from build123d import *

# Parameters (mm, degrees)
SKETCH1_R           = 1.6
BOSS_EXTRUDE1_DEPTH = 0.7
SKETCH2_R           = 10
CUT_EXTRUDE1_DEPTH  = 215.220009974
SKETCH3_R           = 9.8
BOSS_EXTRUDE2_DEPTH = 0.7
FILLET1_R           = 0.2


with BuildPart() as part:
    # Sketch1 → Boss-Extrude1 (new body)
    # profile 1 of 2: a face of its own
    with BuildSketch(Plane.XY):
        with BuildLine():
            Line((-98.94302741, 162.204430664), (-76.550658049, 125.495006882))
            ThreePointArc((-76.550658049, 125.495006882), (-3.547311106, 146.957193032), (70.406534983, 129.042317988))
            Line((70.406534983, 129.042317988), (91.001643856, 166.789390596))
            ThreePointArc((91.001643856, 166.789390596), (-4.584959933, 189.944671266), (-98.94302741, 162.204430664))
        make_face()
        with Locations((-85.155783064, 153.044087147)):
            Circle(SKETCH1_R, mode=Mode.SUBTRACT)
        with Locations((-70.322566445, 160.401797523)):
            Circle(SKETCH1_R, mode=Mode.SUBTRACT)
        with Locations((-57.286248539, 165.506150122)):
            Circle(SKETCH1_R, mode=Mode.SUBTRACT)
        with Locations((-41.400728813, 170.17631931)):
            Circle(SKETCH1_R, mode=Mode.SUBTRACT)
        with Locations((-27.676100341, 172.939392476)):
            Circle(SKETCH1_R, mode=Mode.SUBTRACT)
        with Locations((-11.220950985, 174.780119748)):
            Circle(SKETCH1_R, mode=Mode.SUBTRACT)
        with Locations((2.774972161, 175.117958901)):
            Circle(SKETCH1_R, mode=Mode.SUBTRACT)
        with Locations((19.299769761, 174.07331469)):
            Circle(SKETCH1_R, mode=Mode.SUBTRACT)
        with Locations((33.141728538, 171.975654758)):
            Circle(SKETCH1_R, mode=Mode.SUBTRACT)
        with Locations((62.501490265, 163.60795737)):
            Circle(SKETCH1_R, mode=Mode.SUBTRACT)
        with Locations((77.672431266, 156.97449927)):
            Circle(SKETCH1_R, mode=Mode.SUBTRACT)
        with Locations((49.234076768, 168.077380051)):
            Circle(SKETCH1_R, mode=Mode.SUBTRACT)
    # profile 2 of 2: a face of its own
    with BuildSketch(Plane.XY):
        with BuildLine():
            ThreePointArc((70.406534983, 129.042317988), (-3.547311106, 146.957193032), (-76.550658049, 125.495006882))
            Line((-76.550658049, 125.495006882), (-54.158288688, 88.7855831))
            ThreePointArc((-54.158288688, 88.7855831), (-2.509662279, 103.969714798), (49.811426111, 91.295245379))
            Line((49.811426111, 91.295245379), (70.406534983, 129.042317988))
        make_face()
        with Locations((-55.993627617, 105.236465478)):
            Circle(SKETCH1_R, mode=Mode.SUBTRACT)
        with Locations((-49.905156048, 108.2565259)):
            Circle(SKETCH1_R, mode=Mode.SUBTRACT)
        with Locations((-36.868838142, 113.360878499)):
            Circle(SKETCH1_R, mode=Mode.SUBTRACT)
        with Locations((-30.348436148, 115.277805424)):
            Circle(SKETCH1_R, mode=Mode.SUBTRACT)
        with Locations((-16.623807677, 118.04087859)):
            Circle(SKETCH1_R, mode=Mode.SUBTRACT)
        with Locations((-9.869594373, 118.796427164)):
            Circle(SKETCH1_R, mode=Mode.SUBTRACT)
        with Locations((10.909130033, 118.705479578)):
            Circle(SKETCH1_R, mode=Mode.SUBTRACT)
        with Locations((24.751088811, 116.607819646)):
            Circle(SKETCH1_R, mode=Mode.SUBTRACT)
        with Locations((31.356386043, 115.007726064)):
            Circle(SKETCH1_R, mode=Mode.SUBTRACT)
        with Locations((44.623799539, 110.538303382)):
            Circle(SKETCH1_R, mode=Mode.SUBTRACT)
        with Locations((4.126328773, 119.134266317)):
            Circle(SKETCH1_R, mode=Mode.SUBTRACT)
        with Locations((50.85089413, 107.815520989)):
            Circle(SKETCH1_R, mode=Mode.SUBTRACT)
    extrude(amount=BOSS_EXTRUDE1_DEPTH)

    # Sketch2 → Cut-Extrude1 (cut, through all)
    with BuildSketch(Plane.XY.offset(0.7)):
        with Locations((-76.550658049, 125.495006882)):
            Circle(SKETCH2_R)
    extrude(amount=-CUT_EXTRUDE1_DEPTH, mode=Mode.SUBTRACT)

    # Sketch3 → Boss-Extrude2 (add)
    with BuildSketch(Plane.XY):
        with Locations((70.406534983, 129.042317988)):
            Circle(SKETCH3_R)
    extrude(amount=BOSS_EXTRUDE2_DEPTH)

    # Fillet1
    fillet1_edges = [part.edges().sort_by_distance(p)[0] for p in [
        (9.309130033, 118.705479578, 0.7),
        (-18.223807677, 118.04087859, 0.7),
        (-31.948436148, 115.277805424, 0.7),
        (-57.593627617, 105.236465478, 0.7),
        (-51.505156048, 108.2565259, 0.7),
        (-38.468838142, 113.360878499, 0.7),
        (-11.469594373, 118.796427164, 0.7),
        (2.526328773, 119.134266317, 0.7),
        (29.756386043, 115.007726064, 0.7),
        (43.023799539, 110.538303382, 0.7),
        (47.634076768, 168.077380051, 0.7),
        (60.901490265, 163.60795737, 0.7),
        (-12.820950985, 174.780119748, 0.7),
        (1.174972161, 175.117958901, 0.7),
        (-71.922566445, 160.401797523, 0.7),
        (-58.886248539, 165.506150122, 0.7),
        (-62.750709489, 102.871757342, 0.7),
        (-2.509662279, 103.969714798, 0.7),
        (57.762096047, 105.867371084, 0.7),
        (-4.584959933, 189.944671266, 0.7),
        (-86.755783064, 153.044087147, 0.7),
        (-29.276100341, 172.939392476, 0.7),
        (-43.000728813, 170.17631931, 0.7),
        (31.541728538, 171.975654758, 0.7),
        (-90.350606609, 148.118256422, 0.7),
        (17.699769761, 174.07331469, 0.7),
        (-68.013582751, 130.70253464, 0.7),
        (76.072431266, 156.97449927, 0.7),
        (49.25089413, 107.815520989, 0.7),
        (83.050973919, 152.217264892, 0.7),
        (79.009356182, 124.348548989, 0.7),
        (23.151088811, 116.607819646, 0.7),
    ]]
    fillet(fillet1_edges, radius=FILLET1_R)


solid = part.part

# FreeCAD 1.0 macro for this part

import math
import FreeCAD as App
import Part
import Sketcher

V = App.Vector


def edges_at(feature, points):
    """Names of the edges that pass closest to the given points."""
    edges = feature.Shape.Edges
    near = lambda p: min(range(len(edges)), key=lambda i: edges[i].distToShape(Part.Vertex(*p))[0])
    return sorted({f"Edge{near(p) + 1}" for p in points})

doc = App.newDocument("Part")
body = doc.addObject("PartDesign::Body", "Body")

# Sketch on XY plane
sketch1 = body.newObject("Sketcher::SketchObject", "Sketch")
sketch1.AttachmentSupport = (doc.getObject("XY_Plane"), [""])
sketch1.MapMode = "FlatFace"
sketch1.addGeometry([
    Part.LineSegment(V(-98.9, 162.2, 0), V(-54.2, 88.8, 0)),  # 0
    Part.ArcOfCircle(Part.Circle(V(0, 0, 0), V(0, 0, 1), 104), math.radians(61), math.radians(121)),  # 1
    Part.LineSegment(V(49.8, 91.3, 0), V(70.4, 129, 0)),  # 2
    Part.LineSegment(V(70.4, 129, 0), V(91, 166.8, 0)),  # 3
    Part.ArcOfCircle(Part.Circle(V(0, 0, 0), V(0, 0, 1), 190), math.radians(61), math.radians(121)),  # 4
    Part.Circle(V(-85.2, 153, 0), V(0, 0, 1), 1.6),  # 5
    Part.Circle(V(-70.3, 160.4, 0), V(0, 0, 1), 1.6),  # 6
    Part.Circle(V(77.7, 157, 0), V(0, 0, 1), 1.6),  # 7
    Part.Circle(V(62.5, 163.6, 0), V(0, 0, 1), 1.6),  # 8
    Part.Circle(V(-57.3, 165.5, 0), V(0, 0, 1), 1.6),  # 9
    Part.Circle(V(-41.4, 170.2, 0), V(0, 0, 1), 1.6),  # 10
    Part.Circle(V(-27.7, 172.9, 0), V(0, 0, 1), 1.6),  # 11
    Part.Circle(V(-11.2, 174.8, 0), V(0, 0, 1), 1.6),  # 12
    Part.Circle(V(49.2, 168.1, 0), V(0, 0, 1), 1.6),  # 13
    Part.Circle(V(33.1, 172, 0), V(0, 0, 1), 1.6),  # 14
    Part.Circle(V(2.8, 175.1, 0), V(0, 0, 1), 1.6),  # 15
    Part.Circle(V(19.3, 174.1, 0), V(0, 0, 1), 1.6),  # 16
    Part.Circle(V(10.9, 118.7, 0), V(0, 0, 1), 1.6),  # 17
    Part.Circle(V(-56, 105.2, 0), V(0, 0, 1), 1.6),  # 18
    Part.Circle(V(-49.9, 108.3, 0), V(0, 0, 1), 1.6),  # 19
    Part.Circle(V(50.9, 107.8, 0), V(0, 0, 1), 1.6),  # 20
    Part.Circle(V(44.6, 110.5, 0), V(0, 0, 1), 1.6),  # 21
    Part.Circle(V(-36.9, 113.4, 0), V(0, 0, 1), 1.6),  # 22
    Part.Circle(V(-30.3, 115.3, 0), V(0, 0, 1), 1.6),  # 23
    Part.Circle(V(-16.6, 118, 0), V(0, 0, 1), 1.6),  # 24
    Part.Circle(V(-9.9, 118.8, 0), V(0, 0, 1), 1.6),  # 25
    Part.Circle(V(31.4, 115, 0), V(0, 0, 1), 1.6),  # 26
    Part.Circle(V(24.8, 116.6, 0), V(0, 0, 1), 1.6),  # 27
    Part.Circle(V(4.1, 119.1, 0), V(0, 0, 1), 1.6),  # 28
], False)
sketch1.addConstraint([
    Sketcher.Constraint("Coincident", 0, 2, 1, 2),
    Sketcher.Constraint("Coincident", 1, 1, 2, 1),
    Sketcher.Constraint("Coincident", 2, 2, 3, 1),
    Sketcher.Constraint("Coincident", 3, 2, 4, 1),
    Sketcher.Constraint("Coincident", 4, 2, 0, 1),
    Sketcher.Constraint("Coincident", 1, 3, -1, 1),
    Sketcher.Constraint("Coincident", 4, 3, -1, 1),
    Sketcher.Constraint("Equal", 5, 6),
    Sketcher.Constraint("Equal", 6, 7),
    Sketcher.Constraint("Equal", 7, 8),
    Sketcher.Constraint("Equal", 8, 9),
    Sketcher.Constraint("Equal", 9, 10),
    Sketcher.Constraint("Equal", 10, 11),
    Sketcher.Constraint("Equal", 11, 12),
    Sketcher.Constraint("Equal", 12, 13),
    Sketcher.Constraint("Equal", 13, 14),
    Sketcher.Constraint("Equal", 14, 15),
    Sketcher.Constraint("Equal", 15, 16),
    Sketcher.Constraint("Equal", 16, 17),
    Sketcher.Constraint("Equal", 17, 18),
    Sketcher.Constraint("Equal", 18, 19),
    Sketcher.Constraint("Equal", 19, 20),
    Sketcher.Constraint("Equal", 20, 21),
    Sketcher.Constraint("Equal", 21, 22),
    Sketcher.Constraint("Equal", 22, 23),
    Sketcher.Constraint("Equal", 23, 24),
    Sketcher.Constraint("Equal", 24, 25),
    Sketcher.Constraint("Equal", 25, 26),
    Sketcher.Constraint("Equal", 26, 27),
    Sketcher.Constraint("Equal", 27, 28),
    Sketcher.Constraint("Parallel", 2, 3),
    Sketcher.Constraint("Equal", 2, 3),
    Sketcher.Constraint("Radius", 1, 104.0),
    Sketcher.Constraint("Radius", 4, 190.0),
    Sketcher.Constraint("Diameter", 5, 3.2),
    Sketcher.Constraint("DistanceY", 22, 3, 24, 3, 4.68),
    Sketcher.Constraint("DistanceY", -1, 1, 7, 3, 156.974499),
    Sketcher.Constraint("DistanceX", 11, 3, -1, 1, 27.6761),
    Sketcher.Constraint("DistanceX", -1, 1, 21, 3, 44.6238),
    Sketcher.Constraint("DistanceY", 7, 3, 6, 3, 3.427298),
    Sketcher.Constraint("DistanceY", 10, 3, 12, 3, 4.6038),
    Sketcher.Constraint("DistanceX", 10, 3, 15, 3, 44.175701),
    Sketcher.Constraint("DistanceX", 17, 3, 14, 3, 22.232599),
    Sketcher.Constraint("DistanceY", 17, 3, 13, 3, 49.3719),
    Sketcher.Constraint("DistanceX", 18, 3, 10, 3, 14.592899),
    Sketcher.Constraint("DistanceY", 22, 3, 17, 3, 5.344601),
    Sketcher.Constraint("DistanceX", 22, 3, 23, 3, 6.520402),
    Sketcher.Constraint("DistanceY", 19, 3, 25, 3, 10.539901),
    Sketcher.Constraint("DistanceY", 26, 3, 25, 3, 3.788701),
    Sketcher.Constraint("DistanceY", 20, 3, 27, 3, 8.792299),
    Sketcher.Constraint("DistanceX", 28, 3, 17, 3, 6.782801),
    Sketcher.Constraint("DistanceX", 4, 2, 10, 3, 57.542299),
    Sketcher.Constraint("DistanceX", -1, 1, 7, 3, 77.672431),
    Sketcher.Constraint("DistanceX", -1, 1, 8, 3, 62.50149),
    Sketcher.Constraint("DistanceX", 9, 3, -1, 1, 57.286249),
    Sketcher.Constraint("DistanceY", -1, 1, 9, 3, 165.50615),
    Sketcher.Constraint("DistanceX", 10, 3, -1, 1, 41.400729),
    Sketcher.Constraint("DistanceY", -1, 1, 10, 3, 170.176319),
    Sketcher.Constraint("DistanceX", 12, 3, -1, 1, 11.220951),
    Sketcher.Constraint("DistanceY", -1, 1, 13, 3, 168.07738),
    Sketcher.Constraint("DistanceX", -1, 1, 14, 3, 33.141729),
    Sketcher.Constraint("DistanceY", -1, 1, 15, 3, 175.117959),
    Sketcher.Constraint("DistanceX", -1, 1, 16, 3, 19.29977),
    Sketcher.Constraint("DistanceY", -1, 1, 20, 3, 107.815521),
    Sketcher.Constraint("DistanceX", 22, 3, -1, 1, 36.868838),
    Sketcher.Constraint("DistanceX", -1, 1, 27, 3, 24.751089),
    Sketcher.Constraint("DistanceX", 0, 2, -1, 1, 54.158289),
    Sketcher.Constraint("DistanceY", -1, 1, 3, 2, 166.789391),
    Sketcher.Constraint("DistanceY", 5, 3, 6, 3, 7.35771),
    Sketcher.Constraint("DistanceY", 7, 3, 8, 3, 6.633458),
    Sketcher.Constraint("DistanceX", 14, 3, 13, 3, 16.092348),
    Sketcher.Constraint("DistanceY", 14, 3, 16, 3, 2.09766),
    Sketcher.Constraint("DistanceY", 18, 3, 5, 3, 47.807622),
    Sketcher.Constraint("DistanceX", 6, 3, 18, 3, 14.328939),
    Sketcher.Constraint("DistanceX", 18, 3, 19, 3, 6.088472),
    Sketcher.Constraint("DistanceY", 18, 3, 19, 3, 3.02006),
    Sketcher.Constraint("DistanceY", 19, 3, 23, 3, 7.02128),
    Sketcher.Constraint("DistanceX", 23, 3, 24, 3, 13.724628),
    Sketcher.Constraint("DistanceX", 23, 3, 25, 3, 20.478842),
    Sketcher.Constraint("DistanceX", 26, 3, 20, 3, 19.494508),
    Sketcher.Constraint("DistanceX", 25, 3, 26, 3, 41.22598),
    Sketcher.Constraint("DistanceY", 25, 3, 28, 3, 0.337839),
    Sketcher.Constraint("DistanceX", 1, 1, 20, 3, 1.039468),
    Sketcher.Constraint("DistanceY", 1, 1, 21, 3, 19.243058),
    Sketcher.Constraint("DistanceX", 5, 3, -1, 1, 85.155783),
    Sketcher.Constraint("DistanceY", -1, 1, 11, 3, 172.939392),
    Sketcher.Constraint("DistanceY", -1, 1, 14, 3, 171.975655),
])
pad1 = body.newObject("PartDesign::Pad", "Pad")
pad1.Profile = sketch1
pad1.Length = 0.7

# Sketch on XY plane
sketch2 = body.newObject("Sketcher::SketchObject", "Sketch001")
sketch2.AttachmentSupport = (doc.getObject("XY_Plane"), [""])
sketch2.MapMode = "FlatFace"
sketch2.AttachmentOffset = App.Placement(V(0, 0, 0.7), App.Rotation())
sketch2.addGeometry(Part.Circle(V(-77, 125, 0), V(0, 0, 1), 10), False)
sketch2.addConstraint([
    Sketcher.Constraint("Diameter", 0, 20.0),
    Sketcher.Constraint("DistanceX", 0, 3, -1, 1, 76.550658),
    Sketcher.Constraint("DistanceY", -1, 1, 0, 3, 125.495007),
])
pocket1 = body.newObject("PartDesign::Pocket", "Pocket")
pocket1.Profile = sketch2
pocket1.Type = "ThroughAll"

# Sketch on XY plane
sketch3 = body.newObject("Sketcher::SketchObject", "Sketch002")
sketch3.AttachmentSupport = (doc.getObject("XY_Plane"), [""])
sketch3.MapMode = "FlatFace"
sketch3.addGeometry(Part.Circle(V(70, 129, 0), V(0, 0, 1), 10), False)
sketch3.addConstraint([
    Sketcher.Constraint("Diameter", 0, 19.6),
    Sketcher.Constraint("DistanceX", -1, 1, 0, 3, 70.406535),
    Sketcher.Constraint("DistanceY", -1, 1, 0, 3, 129.042318),
])
pad2 = body.newObject("PartDesign::Pad", "Pad001")
pad2.Profile = sketch3
pad2.Length = 0.7
doc.recompute()

fillet = body.newObject("PartDesign::Fillet", "Fillet")
fillet.Base = (pad2, edges_at(pad2, [
    (9.309, 118.705, 0.7),
    (-18.224, 118.041, 0.7),
    (-31.948, 115.278, 0.7),
    (-57.594, 105.236, 0.7),
    (-51.505, 108.257, 0.7),
    (-38.469, 113.361, 0.7),
    (-11.47, 118.796, 0.7),
    (2.526, 119.134, 0.7),
    (29.756, 115.008, 0.7),
    (43.024, 110.538, 0.7),
    (47.634, 168.077, 0.7),
    (60.901, 163.608, 0.7),
    (-12.821, 174.78, 0.7),
    (1.175, 175.118, 0.7),
    (-71.923, 160.402, 0.7),
    (-58.886, 165.506, 0.7),
    (-62.751, 102.872, 0.7),
    (-2.51, 103.97, 0.7),
    (57.762, 105.867, 0.7),
    (-4.585, 189.945, 0.7),
    (-86.756, 153.044, 0.7),
    (-29.276, 172.939, 0.7),
    (-43.001, 170.176, 0.7),
    (31.542, 171.976, 0.7),
    (-90.351, 148.118, 0.7),
    (17.7, 174.073, 0.7),
    (-68.014, 130.703, 0.7),
    (76.072, 156.974, 0.7),
    (49.251, 107.816, 0.7),
    (83.051, 152.217, 0.7),
    (79.009, 124.349, 0.7),
    (23.151, 116.608, 0.7),
]))
fillet.Radius = 0.2

doc.recompute()
